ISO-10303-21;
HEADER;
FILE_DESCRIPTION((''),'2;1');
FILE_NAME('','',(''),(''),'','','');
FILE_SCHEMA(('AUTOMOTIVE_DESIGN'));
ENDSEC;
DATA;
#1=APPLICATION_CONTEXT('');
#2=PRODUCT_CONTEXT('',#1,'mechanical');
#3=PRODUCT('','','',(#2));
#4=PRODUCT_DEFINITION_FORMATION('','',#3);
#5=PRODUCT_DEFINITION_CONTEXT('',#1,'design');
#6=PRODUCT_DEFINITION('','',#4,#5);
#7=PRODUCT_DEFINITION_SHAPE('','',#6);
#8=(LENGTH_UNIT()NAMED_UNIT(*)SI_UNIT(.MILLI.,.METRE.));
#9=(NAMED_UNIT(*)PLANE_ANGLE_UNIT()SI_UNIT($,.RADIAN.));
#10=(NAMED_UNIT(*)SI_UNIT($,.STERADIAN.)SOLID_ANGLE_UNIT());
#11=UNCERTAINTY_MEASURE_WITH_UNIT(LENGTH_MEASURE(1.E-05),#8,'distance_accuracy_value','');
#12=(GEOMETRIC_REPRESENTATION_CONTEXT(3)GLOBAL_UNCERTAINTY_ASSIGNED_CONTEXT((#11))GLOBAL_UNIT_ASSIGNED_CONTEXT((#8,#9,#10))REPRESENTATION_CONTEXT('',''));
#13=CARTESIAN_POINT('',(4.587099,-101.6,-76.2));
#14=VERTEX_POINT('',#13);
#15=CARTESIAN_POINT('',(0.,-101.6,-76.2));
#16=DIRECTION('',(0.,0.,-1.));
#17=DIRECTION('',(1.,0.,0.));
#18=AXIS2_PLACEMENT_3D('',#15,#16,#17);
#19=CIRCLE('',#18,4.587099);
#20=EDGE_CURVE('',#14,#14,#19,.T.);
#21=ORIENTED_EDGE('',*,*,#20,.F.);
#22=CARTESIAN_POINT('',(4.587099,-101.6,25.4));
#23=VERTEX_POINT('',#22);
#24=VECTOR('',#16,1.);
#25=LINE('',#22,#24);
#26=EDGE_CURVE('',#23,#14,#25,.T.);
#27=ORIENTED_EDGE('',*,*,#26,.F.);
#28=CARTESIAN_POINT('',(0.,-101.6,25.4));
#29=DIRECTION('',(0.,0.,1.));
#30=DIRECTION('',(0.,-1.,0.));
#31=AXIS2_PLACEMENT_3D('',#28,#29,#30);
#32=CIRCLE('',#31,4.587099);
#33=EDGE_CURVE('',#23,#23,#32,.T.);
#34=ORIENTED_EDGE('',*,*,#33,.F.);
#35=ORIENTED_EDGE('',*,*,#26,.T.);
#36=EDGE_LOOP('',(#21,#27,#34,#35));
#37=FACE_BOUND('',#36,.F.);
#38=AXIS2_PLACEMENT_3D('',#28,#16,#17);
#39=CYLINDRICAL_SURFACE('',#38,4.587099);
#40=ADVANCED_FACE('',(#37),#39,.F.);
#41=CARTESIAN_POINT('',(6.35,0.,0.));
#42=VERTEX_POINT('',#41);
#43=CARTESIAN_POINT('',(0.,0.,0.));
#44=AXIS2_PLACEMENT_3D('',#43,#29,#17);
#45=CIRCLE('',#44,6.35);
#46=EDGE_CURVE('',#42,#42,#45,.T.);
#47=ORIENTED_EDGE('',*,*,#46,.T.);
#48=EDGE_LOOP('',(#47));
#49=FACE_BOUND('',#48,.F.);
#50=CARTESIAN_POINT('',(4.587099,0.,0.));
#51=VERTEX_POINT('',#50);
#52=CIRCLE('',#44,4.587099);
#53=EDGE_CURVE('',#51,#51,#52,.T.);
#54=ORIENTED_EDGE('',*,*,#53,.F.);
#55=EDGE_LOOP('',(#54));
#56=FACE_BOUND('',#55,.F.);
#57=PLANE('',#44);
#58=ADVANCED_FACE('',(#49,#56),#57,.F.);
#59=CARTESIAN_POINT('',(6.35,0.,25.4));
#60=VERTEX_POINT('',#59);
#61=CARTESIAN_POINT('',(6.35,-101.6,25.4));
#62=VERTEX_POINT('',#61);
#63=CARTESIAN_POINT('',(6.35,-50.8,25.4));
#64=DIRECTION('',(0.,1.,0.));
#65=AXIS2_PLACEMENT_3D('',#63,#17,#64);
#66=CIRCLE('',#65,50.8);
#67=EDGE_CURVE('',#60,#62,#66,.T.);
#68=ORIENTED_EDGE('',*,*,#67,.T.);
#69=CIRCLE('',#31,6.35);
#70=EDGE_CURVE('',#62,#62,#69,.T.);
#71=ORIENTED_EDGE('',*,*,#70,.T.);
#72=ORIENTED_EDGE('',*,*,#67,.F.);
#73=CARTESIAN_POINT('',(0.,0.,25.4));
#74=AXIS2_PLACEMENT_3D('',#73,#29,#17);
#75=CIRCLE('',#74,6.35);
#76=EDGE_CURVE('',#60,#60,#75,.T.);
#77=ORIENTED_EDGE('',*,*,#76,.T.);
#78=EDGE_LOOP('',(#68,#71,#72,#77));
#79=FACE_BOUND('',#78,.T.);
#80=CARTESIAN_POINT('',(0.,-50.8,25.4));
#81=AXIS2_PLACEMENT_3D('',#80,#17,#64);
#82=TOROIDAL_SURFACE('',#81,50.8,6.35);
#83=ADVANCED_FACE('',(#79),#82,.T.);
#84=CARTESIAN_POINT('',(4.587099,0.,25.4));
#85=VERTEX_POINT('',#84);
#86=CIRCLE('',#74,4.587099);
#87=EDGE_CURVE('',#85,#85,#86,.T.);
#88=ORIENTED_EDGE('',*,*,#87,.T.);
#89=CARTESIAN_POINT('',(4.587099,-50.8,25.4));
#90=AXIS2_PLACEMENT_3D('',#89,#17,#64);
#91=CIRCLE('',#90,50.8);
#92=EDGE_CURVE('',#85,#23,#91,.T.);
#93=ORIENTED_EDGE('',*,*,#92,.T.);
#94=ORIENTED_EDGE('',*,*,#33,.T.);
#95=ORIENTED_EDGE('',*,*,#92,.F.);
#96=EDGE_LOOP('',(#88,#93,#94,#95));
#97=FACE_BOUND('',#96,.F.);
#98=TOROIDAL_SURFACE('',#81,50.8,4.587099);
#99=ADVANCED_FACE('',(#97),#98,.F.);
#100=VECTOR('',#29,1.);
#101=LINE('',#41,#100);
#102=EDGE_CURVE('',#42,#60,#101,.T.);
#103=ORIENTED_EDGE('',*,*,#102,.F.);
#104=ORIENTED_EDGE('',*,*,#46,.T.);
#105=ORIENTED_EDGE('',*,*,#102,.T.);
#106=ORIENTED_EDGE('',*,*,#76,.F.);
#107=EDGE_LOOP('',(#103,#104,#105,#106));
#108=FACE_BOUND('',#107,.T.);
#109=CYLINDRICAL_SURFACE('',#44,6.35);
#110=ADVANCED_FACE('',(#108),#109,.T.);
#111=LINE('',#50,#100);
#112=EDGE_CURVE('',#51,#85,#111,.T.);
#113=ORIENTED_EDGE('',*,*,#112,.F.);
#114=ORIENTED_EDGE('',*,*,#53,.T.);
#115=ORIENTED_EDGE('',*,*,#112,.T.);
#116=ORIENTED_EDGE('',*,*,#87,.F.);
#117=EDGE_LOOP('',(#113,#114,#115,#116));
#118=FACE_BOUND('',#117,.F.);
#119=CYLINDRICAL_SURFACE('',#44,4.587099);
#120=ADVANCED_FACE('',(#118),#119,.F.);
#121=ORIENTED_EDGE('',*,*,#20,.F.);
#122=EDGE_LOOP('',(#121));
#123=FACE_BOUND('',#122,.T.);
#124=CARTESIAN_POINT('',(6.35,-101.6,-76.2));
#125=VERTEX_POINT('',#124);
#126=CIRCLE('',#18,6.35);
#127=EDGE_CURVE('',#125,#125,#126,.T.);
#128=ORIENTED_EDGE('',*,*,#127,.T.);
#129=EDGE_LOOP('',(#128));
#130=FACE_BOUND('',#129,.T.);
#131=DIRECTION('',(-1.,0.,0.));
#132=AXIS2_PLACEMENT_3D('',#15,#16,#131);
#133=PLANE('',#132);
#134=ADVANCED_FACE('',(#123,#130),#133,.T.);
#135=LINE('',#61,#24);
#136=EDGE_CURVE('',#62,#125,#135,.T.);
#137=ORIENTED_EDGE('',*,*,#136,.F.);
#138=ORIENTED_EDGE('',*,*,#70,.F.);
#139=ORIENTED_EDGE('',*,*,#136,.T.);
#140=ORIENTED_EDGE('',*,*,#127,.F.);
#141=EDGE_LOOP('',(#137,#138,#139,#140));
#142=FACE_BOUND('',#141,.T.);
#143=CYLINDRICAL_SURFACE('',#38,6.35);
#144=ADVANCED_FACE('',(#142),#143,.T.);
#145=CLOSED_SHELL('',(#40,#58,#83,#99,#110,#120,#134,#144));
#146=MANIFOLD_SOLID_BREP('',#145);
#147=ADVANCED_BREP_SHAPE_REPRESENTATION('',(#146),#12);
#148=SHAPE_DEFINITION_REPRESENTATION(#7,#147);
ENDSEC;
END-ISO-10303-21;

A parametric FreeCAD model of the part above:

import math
import FreeCAD as App
import Part
import Sketcher
from FreeCAD import Vector
Q = App.Units.Quantity

doc = App.newDocument("Part")
body = doc.addObject("PartDesign::Body", "Body")

# Sketch on XY plane
sketch1 = doc.addObject("Sketcher::SketchObject", "Sketch")
body.addObject(sketch1)
sketch1.AttachmentSupport = (doc.XY_Plane, [""])
sketch1.MapMode = "FlatFace"
sketch1.addGeometry([
    Part.Circle(Vector(0, 0, 0), Vector(0, 0, 1), 6.35),
    Part.Circle(Vector(0, 0, 0), Vector(0, 0, 1), 4.587099),
], False)
sketch1.addConstraint([
    Sketcher.Constraint("Coincident", 0, 3, -1, 1),
    Sketcher.Constraint("Coincident", 1, 3, -1, 1),
    Sketcher.Constraint("Diameter", 0, Q("0.5 in")),
    Sketcher.Constraint("Diameter", 1, 9.174198),
])

# Sketch on YZ plane
sketch2 = doc.addObject("Sketcher::SketchObject", "Sketch001")
body.addObject(sketch2)
sketch2.AttachmentSupport = (doc.YZ_Plane, [""])
sketch2.MapMode = "FlatFace"
sketch2.addGeometry([
    Part.LineSegment(Vector(0, 0, 0), Vector(0, 25.4, 0)),
    Part.ArcOfCircle(Part.Circle(Vector(-50.8, 25.4, 0), Vector(0, 0, 1), 50.8), math.radians(0), math.radians(180)),
    Part.LineSegment(Vector(-101.6, 25.4, 0), Vector(-101.6, -76.2, 0)),
], False)
sketch2.addConstraint([
    Sketcher.Constraint("Tangent", 0, 2, 1, 1),
    Sketcher.Constraint("Tangent", 1, 2, 2, 1),
    Sketcher.Constraint("Vertical", 0),
    Sketcher.Constraint("Vertical", 2),
    Sketcher.Constraint("Coincident", 0, 1, -1, 1),
    Sketcher.Constraint("Radius", 1, Q("2 in")),
    Sketcher.Constraint("DistanceY", 0, 1, 0, 2, Q("1 in")),
    Sketcher.Constraint("DistanceY", 2, 2, 2, 1, Q("4 in")),
])
doc.recompute()

additivepipe = doc.addObject("PartDesign::AdditivePipe", "AdditivePipe")
body.addObject(additivepipe)
additivepipe.Profile = sketch1
additivepipe.Spine = (sketch2, ["Edge1", "Edge2", "Edge3"])

doc.recompute()
